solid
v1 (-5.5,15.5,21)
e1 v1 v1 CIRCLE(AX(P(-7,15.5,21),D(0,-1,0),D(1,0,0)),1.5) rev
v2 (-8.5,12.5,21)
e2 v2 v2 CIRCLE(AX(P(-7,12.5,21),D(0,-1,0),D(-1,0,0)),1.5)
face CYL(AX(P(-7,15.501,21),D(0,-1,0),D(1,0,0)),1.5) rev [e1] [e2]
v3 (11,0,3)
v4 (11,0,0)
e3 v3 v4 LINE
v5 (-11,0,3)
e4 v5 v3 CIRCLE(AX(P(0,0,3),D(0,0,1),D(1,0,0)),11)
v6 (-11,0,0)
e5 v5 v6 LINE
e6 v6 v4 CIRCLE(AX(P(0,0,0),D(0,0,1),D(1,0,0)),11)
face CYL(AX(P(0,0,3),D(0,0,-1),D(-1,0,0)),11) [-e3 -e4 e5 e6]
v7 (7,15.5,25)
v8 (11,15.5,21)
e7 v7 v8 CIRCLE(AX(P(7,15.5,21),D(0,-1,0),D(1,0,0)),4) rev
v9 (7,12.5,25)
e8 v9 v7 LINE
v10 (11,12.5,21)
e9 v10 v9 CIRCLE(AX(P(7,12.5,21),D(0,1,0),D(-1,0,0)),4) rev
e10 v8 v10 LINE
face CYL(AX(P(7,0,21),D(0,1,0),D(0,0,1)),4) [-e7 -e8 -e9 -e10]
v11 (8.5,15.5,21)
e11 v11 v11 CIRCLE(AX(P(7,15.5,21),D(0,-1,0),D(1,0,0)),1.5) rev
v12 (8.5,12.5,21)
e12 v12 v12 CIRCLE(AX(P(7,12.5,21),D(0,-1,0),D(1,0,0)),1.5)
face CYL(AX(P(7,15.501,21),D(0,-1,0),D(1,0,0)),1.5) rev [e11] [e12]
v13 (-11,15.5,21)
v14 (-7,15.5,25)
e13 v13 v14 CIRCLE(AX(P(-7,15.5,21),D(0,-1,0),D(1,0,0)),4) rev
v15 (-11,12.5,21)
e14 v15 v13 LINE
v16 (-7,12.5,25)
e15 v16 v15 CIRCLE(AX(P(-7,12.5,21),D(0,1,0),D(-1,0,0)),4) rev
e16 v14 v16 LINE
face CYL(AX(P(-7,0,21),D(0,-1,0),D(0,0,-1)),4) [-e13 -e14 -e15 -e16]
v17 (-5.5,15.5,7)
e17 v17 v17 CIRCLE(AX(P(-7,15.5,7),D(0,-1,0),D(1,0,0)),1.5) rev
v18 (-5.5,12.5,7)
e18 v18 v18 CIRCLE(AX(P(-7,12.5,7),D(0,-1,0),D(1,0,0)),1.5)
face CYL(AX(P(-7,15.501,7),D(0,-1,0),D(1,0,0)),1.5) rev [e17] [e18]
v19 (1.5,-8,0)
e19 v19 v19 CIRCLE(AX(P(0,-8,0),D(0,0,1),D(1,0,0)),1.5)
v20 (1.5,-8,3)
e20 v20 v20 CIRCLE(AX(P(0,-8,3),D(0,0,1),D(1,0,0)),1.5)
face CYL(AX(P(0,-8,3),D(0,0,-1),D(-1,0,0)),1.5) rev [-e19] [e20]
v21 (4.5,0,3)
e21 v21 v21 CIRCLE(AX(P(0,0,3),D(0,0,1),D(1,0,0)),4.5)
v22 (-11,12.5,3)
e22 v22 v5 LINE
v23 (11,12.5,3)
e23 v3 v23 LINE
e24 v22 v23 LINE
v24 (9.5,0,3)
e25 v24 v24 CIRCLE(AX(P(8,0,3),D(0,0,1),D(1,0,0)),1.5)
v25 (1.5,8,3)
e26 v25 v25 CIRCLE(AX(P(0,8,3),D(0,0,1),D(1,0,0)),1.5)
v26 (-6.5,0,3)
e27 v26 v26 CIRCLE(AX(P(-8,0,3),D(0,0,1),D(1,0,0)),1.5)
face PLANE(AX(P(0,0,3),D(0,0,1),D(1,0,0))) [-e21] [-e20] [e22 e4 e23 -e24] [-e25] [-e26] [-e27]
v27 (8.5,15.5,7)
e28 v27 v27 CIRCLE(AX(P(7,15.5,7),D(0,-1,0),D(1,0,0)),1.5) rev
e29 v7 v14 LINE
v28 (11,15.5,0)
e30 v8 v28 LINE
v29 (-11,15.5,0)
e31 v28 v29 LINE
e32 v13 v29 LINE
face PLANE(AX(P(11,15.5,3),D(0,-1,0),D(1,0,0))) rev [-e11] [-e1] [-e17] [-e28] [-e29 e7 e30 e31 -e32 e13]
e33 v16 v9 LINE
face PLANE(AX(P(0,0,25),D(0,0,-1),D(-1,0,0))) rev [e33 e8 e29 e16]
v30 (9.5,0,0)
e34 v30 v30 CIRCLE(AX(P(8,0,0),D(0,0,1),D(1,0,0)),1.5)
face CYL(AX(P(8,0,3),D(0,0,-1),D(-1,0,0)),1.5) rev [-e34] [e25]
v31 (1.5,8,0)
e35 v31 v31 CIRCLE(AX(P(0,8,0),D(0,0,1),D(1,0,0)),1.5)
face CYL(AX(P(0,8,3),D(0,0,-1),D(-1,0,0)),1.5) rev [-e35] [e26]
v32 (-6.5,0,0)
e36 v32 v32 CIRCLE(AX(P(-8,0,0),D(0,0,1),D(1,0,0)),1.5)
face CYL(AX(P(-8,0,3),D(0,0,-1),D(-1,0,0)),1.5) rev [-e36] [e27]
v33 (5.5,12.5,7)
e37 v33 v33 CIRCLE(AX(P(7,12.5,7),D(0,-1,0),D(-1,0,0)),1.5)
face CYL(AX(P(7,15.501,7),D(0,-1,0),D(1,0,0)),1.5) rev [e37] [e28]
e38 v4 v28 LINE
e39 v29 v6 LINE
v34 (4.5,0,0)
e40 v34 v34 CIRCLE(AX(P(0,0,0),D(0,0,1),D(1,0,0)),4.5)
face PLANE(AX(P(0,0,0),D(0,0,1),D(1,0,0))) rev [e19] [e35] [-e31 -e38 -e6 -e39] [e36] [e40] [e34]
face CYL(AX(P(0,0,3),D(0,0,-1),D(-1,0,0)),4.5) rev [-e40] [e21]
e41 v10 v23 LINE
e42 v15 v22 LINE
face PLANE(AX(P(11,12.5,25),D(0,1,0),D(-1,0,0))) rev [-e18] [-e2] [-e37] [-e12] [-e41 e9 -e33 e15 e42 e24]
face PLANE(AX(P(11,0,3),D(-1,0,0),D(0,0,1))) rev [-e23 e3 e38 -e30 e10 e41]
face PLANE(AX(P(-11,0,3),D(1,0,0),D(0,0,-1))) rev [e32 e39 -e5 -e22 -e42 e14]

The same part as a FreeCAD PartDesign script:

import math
import FreeCAD as App
import Part
import Sketcher

V = App.Vector
Q = App.Units.Quantity


def edges_at(feature, points):
    """Names of the edges that pass closest to the given points."""
    edges = feature.Shape.Edges
    near = lambda p: min(range(len(edges)), key=lambda i: edges[i].distToShape(Part.Vertex(*p))[0])
    return sorted({f"Edge{near(p) + 1}" for p in points})

doc = App.newDocument("Part")
params = doc.addObject("Spreadsheet::Sheet", "Params")
for row, (alias, value) in enumerate([
    ("sketch1_diameter", "3 mm"),
    ("sketch1_diameter2", "9 mm"),
    ("sketch1_radius", "11 mm"),
    ("sketch1_height", "15.5 mm"),
    ("pad1_length", "3 mm"),
    ("sketch2_width", "22 mm"),
    ("sketch2_height", "3 mm"),
    ("pad2_length", "22 mm"),
    ("sketch3_diameter", "3 mm"),
    ("sketch4_diameter", "3 mm"),
    ("sketch5_diameter", "3 mm"),
    ("sketch6_diameter", "3 mm"),
    ("fillet_radius", "4 mm"),
], start=1):
    params.set(f"A{row}", alias)
    params.set(f"B{row}", "=" + value)
    params.setAlias(f"B{row}", alias)

body = doc.addObject("PartDesign::Body", "Body")

# Sketch on XY plane
sketch1 = body.newObject("Sketcher::SketchObject", "Sketch")
sketch1.AttachmentSupport = (doc.getObject("XY_Plane"), [""])
sketch1.MapMode = "FlatFace"
sketch1.addGeometry(Part.LineSegment(V(11, 0, 0), V(11, 15.5, 0)), False)
sketch1.addGeometry(Part.LineSegment(V(11, 15.5, 0), V(-11, 15.5, 0)), False)
sketch1.addGeometry(Part.LineSegment(V(-11, 15.5, 0), V(-11, 0, 0)), False)
sketch1.addGeometry(Part.ArcOfCircle(Part.Circle(V(0, 0, 0), V(0, 0, 1), 11), math.radians(180), math.radians(360)), False)
sketch1.addGeometry(Part.Circle(V(0, -8, 0), V(0, 0, 1), 1.5), False)
sketch1.addGeometry(Part.Circle(V(-8, 0, 0), V(0, 0, 1), 1.5), False)
sketch1.addGeometry(Part.Circle(V(0, 0, 0), V(0, 0, 1), 4.5), False)
sketch1.addGeometry(Part.Circle(V(8, 0, 0), V(0, 0, 1), 1.5), False)
sketch1.addGeometry(Part.Circle(V(0, 8, 0), V(0, 0, 1), 1.5), False)
sketch1.addConstraint(Sketcher.Constraint("Coincident", 0, 2, 1, 1))
sketch1.addConstraint(Sketcher.Constraint("Coincident", 1, 2, 2, 1))
sketch1.addConstraint(Sketcher.Constraint("Tangent", 2, 2, 3, 1))
sketch1.addConstraint(Sketcher.Constraint("Tangent", 3, 2, 0, 1))
sketch1.addConstraint(Sketcher.Constraint("Vertical", 0))
sketch1.addConstraint(Sketcher.Constraint("Horizontal", 1))
sketch1.addConstraint(Sketcher.Constraint("Vertical", 2))
sketch1.addConstraint(Sketcher.Constraint("Coincident", 3, 3, -1, 1))
sketch1.addConstraint(Sketcher.Constraint("Coincident", 6, 3, -1, 1))
sketch1.addConstraint(Sketcher.Constraint("Equal", 4, 5))
sketch1.addConstraint(Sketcher.Constraint("Equal", 5, 7))
sketch1.addConstraint(Sketcher.Constraint("Equal", 7, 8))
sketch1.addConstraint(Sketcher.Constraint("Symmetric", 5, 3, 7, 3, -1, 1))
sketch1.addConstraint(Sketcher.Constraint("Symmetric", 4, 3, 8, 3, -1, 1))
sketch1.addConstraint(Sketcher.Constraint("PointOnObject", 4, 3, -2))
sketch1.addConstraint(Sketcher.Constraint("PointOnObject", 5, 3, -1))
sketch1.addConstraint(Sketcher.Constraint("Diameter", 4, Q("3 mm")))
sketch1.addConstraint(Sketcher.Constraint("Diameter", 6, Q("9 mm")))
sketch1.addConstraint(Sketcher.Constraint("Radius", 3, Q("11 mm")))
sketch1.addConstraint(Sketcher.Constraint("DistanceY", 0, 1, 0, 2, Q("15.5 mm")))
sketch1.addConstraint(Sketcher.Constraint("DistanceY", 4, 3, -1, 1, Q("8 mm")))
sketch1.addConstraint(Sketcher.Constraint("DistanceX", 5, 3, -1, 1, Q("8 mm")))
sketch1.setExpression("Constraints[16]", "Params.sketch1_diameter")
sketch1.setExpression("Constraints[17]", "Params.sketch1_diameter2")
sketch1.setExpression("Constraints[18]", "Params.sketch1_radius")
sketch1.setExpression("Constraints[19]", "Params.sketch1_height")
pad1 = body.newObject("PartDesign::Pad", "Pad")
pad1.Profile = sketch1
pad1.setExpression("Length", "Params.pad1_length")

# Sketch on XY plane
sketch2 = body.newObject("Sketcher::SketchObject", "Sketch001")
sketch2.AttachmentSupport = (doc.getObject("XY_Plane"), [""])
sketch2.MapMode = "FlatFace"
sketch2.AttachmentOffset = App.Placement(V(0, 0, 3), App.Rotation())
sketch2.addGeometry(Part.LineSegment(V(-11, 15.5, 0), V(-11, 12.5, 0)), False)
sketch2.addGeometry(Part.LineSegment(V(-11, 12.5, 0), V(11, 12.5, 0)), False)
sketch2.addGeometry(Part.LineSegment(V(11, 12.5, 0), V(11, 15.5, 0)), False)
sketch2.addGeometry(Part.LineSegment(V(11, 15.5, 0), V(-11, 15.5, 0)), False)
sketch2.addConstraint(Sketcher.Constraint("Coincident", 0, 2, 1, 1))
sketch2.addConstraint(Sketcher.Constraint("Coincident", 1, 2, 2, 1))
sketch2.addConstraint(Sketcher.Constraint("Coincident", 2, 2, 3, 1))
sketch2.addConstraint(Sketcher.Constraint("Coincident", 3, 2, 0, 1))
sketch2.addConstraint(Sketcher.Constraint("Vertical", 0))
sketch2.addConstraint(Sketcher.Constraint("Horizontal", 1))
sketch2.addConstraint(Sketcher.Constraint("Vertical", 2))
sketch2.addConstraint(Sketcher.Constraint("Horizontal", 3))
sketch2.addConstraint(Sketcher.Constraint("DistanceX", 1, 1, 1, 2, Q("22 mm")))
sketch2.addConstraint(Sketcher.Constraint("DistanceY", 0, 2, 0, 1, Q("3 mm")))
sketch2.addConstraint(Sketcher.Constraint("DistanceX", 0, 2, -1, 1, Q("11 mm")))
sketch2.addConstraint(Sketcher.Constraint("DistanceY", -1, 1, 0, 2, Q("12.5 mm")))
sketch2.setExpression("Constraints[8]", "Params.sketch2_width")
sketch2.setExpression("Constraints[9]", "Params.sketch2_height")
pad2 = body.newObject("PartDesign::Pad", "Pad001")
pad2.Profile = sketch2
pad2.setExpression("Length", "Params.pad2_length")

# Sketch on XZ plane
sketch3 = body.newObject("Sketcher::SketchObject", "Sketch002")
sketch3.AttachmentSupport = (doc.getObject("XZ_Plane"), [""])
sketch3.MapMode = "FlatFace"
sketch3.AttachmentOffset = App.Placement(V(0, 0, -12.5), App.Rotation())
sketch3.addGeometry(Part.Circle(V(7, 21, 0), V(0, 0, 1), 1.5), False)
sketch3.addConstraint(Sketcher.Constraint("Diameter", 0, Q("3 mm")))
sketch3.addConstraint(Sketcher.Constraint("DistanceX", -1, 1, 0, 3, Q("7 mm")))
sketch3.addConstraint(Sketcher.Constraint("DistanceY", -1, 1, 0, 3, Q("21 mm")))
sketch3.setExpression("Constraints[0]", "Params.sketch3_diameter")
pocket1 = body.newObject("PartDesign::Pocket", "Pocket")
pocket1.Profile = sketch3
pocket1.Type = "UpToFirst"

# Sketch on XZ plane
sketch4 = body.newObject("Sketcher::SketchObject", "Sketch003")
sketch4.AttachmentSupport = (doc.getObject("XZ_Plane"), [""])
sketch4.MapMode = "FlatFace"
sketch4.AttachmentOffset = App.Placement(V(0, 0, -12.5), App.Rotation())
sketch4.addGeometry(Part.Circle(V(-7, 21, 0), V(0, 0, 1), 1.5), False)
sketch4.addConstraint(Sketcher.Constraint("Diameter", 0, Q("3 mm")))
sketch4.addConstraint(Sketcher.Constraint("DistanceX", 0, 3, -1, 1, Q("7 mm")))
sketch4.addConstraint(Sketcher.Constraint("DistanceY", -1, 1, 0, 3, Q("21 mm")))
sketch4.setExpression("Constraints[0]", "Params.sketch4_diameter")
pocket2 = body.newObject("PartDesign::Pocket", "Pocket001")
pocket2.Profile = sketch4
pocket2.Type = "UpToFirst"

# Sketch on XZ plane
sketch5 = body.newObject("Sketcher::SketchObject", "Sketch004")
sketch5.AttachmentSupport = (doc.getObject("XZ_Plane"), [""])
sketch5.MapMode = "FlatFace"
sketch5.AttachmentOffset = App.Placement(V(0, 0, -12.5), App.Rotation())
sketch5.addGeometry(Part.Circle(V(7, 7, 0), V(0, 0, 1), 1.5), False)
sketch5.addConstraint(Sketcher.Constraint("Diameter", 0, Q("3 mm")))
sketch5.addConstraint(Sketcher.Constraint("DistanceX", -1, 1, 0, 3, Q("7 mm")))
sketch5.addConstraint(Sketcher.Constraint("DistanceY", -1, 1, 0, 3, Q("7 mm")))
sketch5.setExpression("Constraints[0]", "Params.sketch5_diameter")
pocket3 = body.newObject("PartDesign::Pocket", "Pocket002")
pocket3.Profile = sketch5
pocket3.Type = "UpToFirst"

# Sketch on XZ plane
sketch6 = body.newObject("Sketcher::SketchObject", "Sketch005")
sketch6.AttachmentSupport = (doc.getObject("XZ_Plane"), [""])
sketch6.MapMode = "FlatFace"
sketch6.AttachmentOffset = App.Placement(V(0, 0, -12.5), App.Rotation())
sketch6.addGeometry(Part.Circle(V(-7, 7, 0), V(0, 0, 1), 1.5), False)
sketch6.addConstraint(Sketcher.Constraint("Diameter", 0, Q("3 mm")))
sketch6.addConstraint(Sketcher.Constraint("DistanceX", 0, 3, -1, 1, Q("7 mm")))
sketch6.addConstraint(Sketcher.Constraint("DistanceY", -1, 1, 0, 3, Q("7 mm")))
sketch6.setExpression("Constraints[0]", "Params.sketch6_diameter")
pocket4 = body.newObject("PartDesign::Pocket", "Pocket003")
pocket4.Profile = sketch6
pocket4.Type = "UpToFirst"
doc.recompute()

fillet = body.newObject("PartDesign::Fillet", "Fillet")
fillet.Base = (pocket4, edges_at(pocket4, [(11, 14, 25), (-11, 14, 25)]))
fillet.setExpression("Radius", "Params.fillet_radius")

doc.recompute()
